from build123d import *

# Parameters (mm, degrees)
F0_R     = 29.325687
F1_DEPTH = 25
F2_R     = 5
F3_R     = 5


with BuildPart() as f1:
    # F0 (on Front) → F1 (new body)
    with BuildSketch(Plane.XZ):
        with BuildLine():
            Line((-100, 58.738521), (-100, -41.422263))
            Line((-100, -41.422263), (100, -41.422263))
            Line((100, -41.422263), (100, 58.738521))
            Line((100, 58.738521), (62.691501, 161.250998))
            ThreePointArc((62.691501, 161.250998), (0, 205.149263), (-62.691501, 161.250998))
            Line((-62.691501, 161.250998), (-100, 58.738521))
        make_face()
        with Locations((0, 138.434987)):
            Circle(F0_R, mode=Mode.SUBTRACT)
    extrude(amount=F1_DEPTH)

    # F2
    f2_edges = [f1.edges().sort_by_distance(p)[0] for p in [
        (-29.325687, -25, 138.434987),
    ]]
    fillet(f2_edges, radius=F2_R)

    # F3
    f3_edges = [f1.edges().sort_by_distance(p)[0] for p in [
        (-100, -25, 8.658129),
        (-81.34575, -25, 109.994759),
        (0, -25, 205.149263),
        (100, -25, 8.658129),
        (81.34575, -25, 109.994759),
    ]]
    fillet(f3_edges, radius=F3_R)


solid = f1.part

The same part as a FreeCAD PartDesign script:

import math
import FreeCAD as App
import Part
import Sketcher


def edges_at(feature, points):
    """Names of the edges that pass closest to the given points."""
    edges = feature.Shape.Edges
    near = lambda p: min(range(len(edges)), key=lambda i: edges[i].distToShape(Part.Vertex(*p))[0])
    return sorted({f"Edge{near(p) + 1}" for p in points})

doc = App.newDocument("Part")
body = doc.addObject("PartDesign::Body", "Body")

# Sketch on XZ plane
sketch1 = body.newObject("Sketcher::SketchObject", "Sketch")
sketch1.AttachmentSupport = (doc.getObject("XZ_Plane"), [""])
sketch1.MapMode = "FlatFace"
sketch1.addGeometry(Part.LineSegment(App.Vector(-100, 58.738521, 0), App.Vector(-100, -41.422263, 0)), False)
sketch1.addGeometry(Part.LineSegment(App.Vector(-100, -41.422263, 0), App.Vector(100, -41.422263, 0)), False)
sketch1.addGeometry(Part.LineSegment(App.Vector(100, -41.422263, 0), App.Vector(100, 58.738521, 0)), False)
sketch1.addGeometry(Part.LineSegment(App.Vector(100, 58.738521, 0), App.Vector(62.691501, 161.250998, 0)), False)
sketch1.addGeometry(Part.ArcOfCircle(Part.Circle(App.Vector(0, 138.434987, 0), App.Vector(0, 0, 1), 66.714276), math.radians(19.998524), math.radians(160.001476)), False)
sketch1.addGeometry(Part.LineSegment(App.Vector(-62.691501, 161.250998, 0), App.Vector(-100, 58.738521, 0)), False)
sketch1.addGeometry(Part.Circle(App.Vector(0, 138.434987, 0), App.Vector(0, 0, 1), 29.325687), False)
sketch1.addConstraint(Sketcher.Constraint("Coincident", 0, 2, 1, 1))
sketch1.addConstraint(Sketcher.Constraint("Coincident", 1, 2, 2, 1))
sketch1.addConstraint(Sketcher.Constraint("Coincident", 2, 2, 3, 1))
sketch1.addConstraint(Sketcher.Constraint("Tangent", 3, 2, 4, 1))
sketch1.addConstraint(Sketcher.Constraint("Tangent", 4, 2, 5, 1))
sketch1.addConstraint(Sketcher.Constraint("Coincident", 5, 2, 0, 1))
sketch1.addConstraint(Sketcher.Constraint("Vertical", 0))
sketch1.addConstraint(Sketcher.Constraint("Horizontal", 1))
sketch1.addConstraint(Sketcher.Constraint("Vertical", 2))
sketch1.addConstraint(Sketcher.Constraint("Coincident", 6, 3, 4, 3))
sketch1.addConstraint(Sketcher.Constraint("Symmetric", 3, 2, 4, 2, -2))
sketch1.addConstraint(Sketcher.Constraint("Horizontal", 2, 2, 5, 2))
sketch1.addConstraint(Sketcher.Constraint("DistanceX", 1, 1, 1, 2, 200.0))
sketch1.addConstraint(Sketcher.Constraint("Diameter", 6, 58.651374))
sketch1.addConstraint(Sketcher.Constraint("DistanceY", -1, 1, 3, 2, 161.250998))
sketch1.addConstraint(Sketcher.Constraint("Radius", 4, 66.714276))
sketch1.addConstraint(Sketcher.Constraint("DistanceX", 4, 2, 3, 2, 125.383002))
sketch1.addConstraint(Sketcher.Constraint("DistanceY", 0, 2, 0, 1, 100.160784))
pad1 = body.newObject("PartDesign::Pad", "Pad")
pad1.Profile = sketch1
pad1.Length = 25
doc.recompute()

fillet = body.newObject("PartDesign::Fillet", "Fillet")
fillet.Base = (pad1, edges_at(pad1, [(-29.326, -25, 138.435)]))
fillet.Radius = 5
doc.recompute()

fillet2 = body.newObject("PartDesign::Fillet", "Fillet001")
fillet2.Base = (fillet, edges_at(fillet, [
    (-100, -25, 8.658),
    (-81.346, -25, 109.995),
    (0, -25, 205.149),
    (100, -25, 8.658),
    (81.346, -25, 109.995),
]))
fillet2.Radius = 5

doc.recompute()
